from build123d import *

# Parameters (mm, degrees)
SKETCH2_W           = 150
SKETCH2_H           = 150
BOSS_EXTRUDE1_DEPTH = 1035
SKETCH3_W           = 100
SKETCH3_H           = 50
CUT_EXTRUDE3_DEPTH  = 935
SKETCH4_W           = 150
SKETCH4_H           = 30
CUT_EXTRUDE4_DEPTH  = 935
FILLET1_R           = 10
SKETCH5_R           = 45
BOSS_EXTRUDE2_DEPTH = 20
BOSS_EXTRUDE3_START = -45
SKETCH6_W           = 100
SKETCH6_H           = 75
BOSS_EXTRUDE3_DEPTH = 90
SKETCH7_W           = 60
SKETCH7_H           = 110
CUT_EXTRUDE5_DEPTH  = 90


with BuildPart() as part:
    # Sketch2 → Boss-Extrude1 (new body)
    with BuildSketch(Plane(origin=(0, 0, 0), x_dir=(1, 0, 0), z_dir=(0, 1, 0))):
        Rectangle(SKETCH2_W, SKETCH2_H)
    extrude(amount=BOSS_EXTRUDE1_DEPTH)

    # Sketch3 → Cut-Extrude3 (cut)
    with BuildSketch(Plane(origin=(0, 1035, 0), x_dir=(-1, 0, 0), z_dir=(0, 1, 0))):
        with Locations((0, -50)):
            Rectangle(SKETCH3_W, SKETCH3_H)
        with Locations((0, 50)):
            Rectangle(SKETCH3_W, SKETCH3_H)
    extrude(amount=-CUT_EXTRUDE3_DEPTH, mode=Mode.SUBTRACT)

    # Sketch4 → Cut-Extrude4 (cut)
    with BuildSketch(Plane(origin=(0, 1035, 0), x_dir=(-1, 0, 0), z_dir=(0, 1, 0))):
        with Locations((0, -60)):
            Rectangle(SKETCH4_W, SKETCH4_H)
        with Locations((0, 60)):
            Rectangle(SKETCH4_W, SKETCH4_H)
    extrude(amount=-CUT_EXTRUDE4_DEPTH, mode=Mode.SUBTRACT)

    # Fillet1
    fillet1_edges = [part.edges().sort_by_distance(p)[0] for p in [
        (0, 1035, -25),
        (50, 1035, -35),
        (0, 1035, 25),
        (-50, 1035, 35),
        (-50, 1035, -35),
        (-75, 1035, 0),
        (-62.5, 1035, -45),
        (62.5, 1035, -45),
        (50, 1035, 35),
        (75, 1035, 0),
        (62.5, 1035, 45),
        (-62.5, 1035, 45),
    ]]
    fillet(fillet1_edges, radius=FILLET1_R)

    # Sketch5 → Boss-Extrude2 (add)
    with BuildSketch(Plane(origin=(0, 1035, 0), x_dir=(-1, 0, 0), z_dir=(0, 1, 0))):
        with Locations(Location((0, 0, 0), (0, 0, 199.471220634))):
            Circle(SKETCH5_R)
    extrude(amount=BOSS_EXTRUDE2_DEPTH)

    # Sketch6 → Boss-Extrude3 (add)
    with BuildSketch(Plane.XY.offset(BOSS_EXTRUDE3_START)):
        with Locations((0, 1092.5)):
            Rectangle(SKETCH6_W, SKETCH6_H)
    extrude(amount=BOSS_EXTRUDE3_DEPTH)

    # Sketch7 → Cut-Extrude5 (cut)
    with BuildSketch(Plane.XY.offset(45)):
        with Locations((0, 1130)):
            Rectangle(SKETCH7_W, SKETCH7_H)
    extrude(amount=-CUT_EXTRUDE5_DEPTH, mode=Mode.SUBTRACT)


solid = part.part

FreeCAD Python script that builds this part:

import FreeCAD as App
import Part
import Sketcher


def edges_at(feature, points):
    """Names of the edges that pass closest to the given points."""
    edges = feature.Shape.Edges
    near = lambda p: min(range(len(edges)), key=lambda i: edges[i].distToShape(Part.Vertex(*p))[0])
    return sorted({f"Edge{near(p) + 1}" for p in points})


def add_polygon(sketch, points):
    """Adds a closed chain of lines whose ends are joined by coincident constraints."""
    first, n = sketch.GeometryCount, len(points)
    for a, b in zip(points, points[1:] + points[:1]):
        sketch.addGeometry(Part.LineSegment(App.Vector(*a, 0), App.Vector(*b, 0)), False)
    for i in range(n):
        sketch.addConstraint(Sketcher.Constraint("Coincident", first + i, 2, first + (i + 1) % n, 1))

doc = App.newDocument("Part")
body = doc.addObject("PartDesign::Body", "Body")

# Sketch on XZ plane
sketch1 = body.newObject("Sketcher::SketchObject", "Sketch")
sketch1.AttachmentSupport = (doc.getObject("XZ_Plane"), [""])
sketch1.MapMode = "FlatFace"
add_polygon(sketch1, [(-75, -75), (-75, 75), (75, 75), (75, -75)])  # lines 0-3
sketch1.addConstraint([
    Sketcher.Constraint("Vertical", 0),
    Sketcher.Constraint("Horizontal", 1),
    Sketcher.Constraint("Vertical", 2),
    Sketcher.Constraint("Horizontal", 3),
    Sketcher.Constraint("Symmetric", 0, 2, 2, 2, -1, 1),
    Sketcher.Constraint("Equal", 3, 0),
    Sketcher.Constraint("DistanceX", 1, 1, 1, 2, 150.0),
])
pad1 = body.newObject("PartDesign::Pad", "Pad")
pad1.Profile = sketch1
pad1.Length = 1035
pad1.Reversed = True

# Sketch on XZ plane
sketch2 = body.newObject("Sketcher::SketchObject", "Sketch001")
sketch2.AttachmentSupport = (doc.getObject("XZ_Plane"), [""])
sketch2.MapMode = "FlatFace"
sketch2.AttachmentOffset = App.Placement(App.Vector(0, 0, -1035), App.Rotation())
add_polygon(sketch2, [(50, -25), (50, -75), (-50, -75), (-50, -25)])  # lines 0-3
add_polygon(sketch2, [(50, 75), (50, 25), (-50, 25), (-50, 75)])  # lines 4-7
sketch2.addConstraint([
    Sketcher.Constraint("Vertical", 0),
    Sketcher.Constraint("Horizontal", 1),
    Sketcher.Constraint("Vertical", 2),
    Sketcher.Constraint("Horizontal", 3),
    Sketcher.Constraint("Vertical", 4),
    Sketcher.Constraint("Horizontal", 5),
    Sketcher.Constraint("Vertical", 6),
    Sketcher.Constraint("Horizontal", 7),
    Sketcher.Constraint("Symmetric", 2, 2, 4, 2, -1, 1),
    Sketcher.Constraint("Symmetric", 0, 2, 6, 2, -1, 1),
    Sketcher.Constraint("Vertical", 3, 2, 4, 2),
    Sketcher.Constraint("DistanceX", 1, 2, 1, 1, 100.0),
    Sketcher.Constraint("DistanceY", 0, 2, 0, 1, 50.0),
    Sketcher.Constraint("DistanceY", 0, 2, -1, 1, 75.0),
])
pocket1 = body.newObject("PartDesign::Pocket", "Pocket")
pocket1.Profile = sketch2
pocket1.Length = 935
pocket1.Reversed = True

# Sketch on XZ plane
sketch3 = body.newObject("Sketcher::SketchObject", "Sketch002")
sketch3.AttachmentSupport = (doc.getObject("XZ_Plane"), [""])
sketch3.MapMode = "FlatFace"
sketch3.AttachmentOffset = App.Placement(App.Vector(0, 0, -1035), App.Rotation())
add_polygon(sketch3, [(75, -45), (75, -75), (-75, -75), (-75, -45)])  # lines 0-3
add_polygon(sketch3, [(75, 75), (75, 45), (-75, 45), (-75, 75)])  # lines 4-7
sketch3.addConstraint([
    Sketcher.Constraint("Vertical", 0),
    Sketcher.Constraint("Horizontal", 1),
    Sketcher.Constraint("Vertical", 2),
    Sketcher.Constraint("Horizontal", 3),
    Sketcher.Constraint("Vertical", 4),
    Sketcher.Constraint("Horizontal", 5),
    Sketcher.Constraint("Vertical", 6),
    Sketcher.Constraint("Horizontal", 7),
    Sketcher.Constraint("Symmetric", 2, 2, 4, 2, -1, 1),
    Sketcher.Constraint("Symmetric", 0, 2, 6, 2, -1, 1),
    Sketcher.Constraint("Vertical", 3, 2, 4, 2),
    Sketcher.Constraint("DistanceX", 1, 2, 1, 1, 150.0),
    Sketcher.Constraint("DistanceY", 0, 2, 0, 1, 30.0),
    Sketcher.Constraint("DistanceY", 0, 2, -1, 1, 75.0),
])
pocket2 = body.newObject("PartDesign::Pocket", "Pocket001")
pocket2.Profile = sketch3
pocket2.Length = 935
pocket2.Reversed = True
doc.recompute()

fillet = body.newObject("PartDesign::Fillet", "Fillet")
fillet.Base = (pocket2, edges_at(pocket2, [
    (0, 1035, -25),
    (50, 1035, -35),
    (0, 1035, 25),
    (-50, 1035, 35),
    (-50, 1035, -35),
    (-75, 1035, 0),
    (-62.5, 1035, -45),
    (62.5, 1035, -45),
    (50, 1035, 35),
    (75, 1035, 0),
    (62.5, 1035, 45),
    (-62.5, 1035, 45),
]))
fillet.Radius = 10

# Sketch on XZ plane
sketch4 = body.newObject("Sketcher::SketchObject", "Sketch003")
sketch4.AttachmentSupport = (doc.getObject("XZ_Plane"), [""])
sketch4.MapMode = "FlatFace"
sketch4.AttachmentOffset = App.Placement(App.Vector(0, 0, -1035), App.Rotation())
sketch4.addGeometry(Part.Circle(App.Vector(0, 0, 0), App.Vector(0, 0, 1), 45), False)
sketch4.addConstraint([
    Sketcher.Constraint("Coincident", 0, 3, -1, 1),
    Sketcher.Constraint("Diameter", 0, 90.0),
])
pad2 = body.newObject("PartDesign::Pad", "Pad001")
pad2.Profile = sketch4
pad2.Length = 20
pad2.Reversed = True

# Sketch on XY plane
sketch5 = body.newObject("Sketcher::SketchObject", "Sketch004")
sketch5.AttachmentSupport = (doc.getObject("XY_Plane"), [""])
sketch5.MapMode = "FlatFace"
sketch5.AttachmentOffset = App.Placement(App.Vector(0, 0, -45), App.Rotation())
add_polygon(sketch5, [(-50, 1130), (-50, 1055), (50, 1055), (50, 1130)])  # lines 0-3
sketch5.addConstraint([
    Sketcher.Constraint("Vertical", 0),
    Sketcher.Constraint("Horizontal", 1),
    Sketcher.Constraint("Vertical", 2),
    Sketcher.Constraint("Horizontal", 3),
    Sketcher.Constraint("DistanceX", 1, 1, 1, 2, 100.0),
    Sketcher.Constraint("DistanceY", 0, 2, 0, 1, 75.0),
    Sketcher.Constraint("DistanceX", 0, 2, -1, 1, 50.0),
    Sketcher.Constraint("DistanceY", -1, 1, 0, 2, 1055.0),
])
pad3 = body.newObject("PartDesign::Pad", "Pad002")
pad3.Profile = sketch5
pad3.Length = 90

# Sketch on XY plane
sketch6 = body.newObject("Sketcher::SketchObject", "Sketch005")
sketch6.AttachmentSupport = (doc.getObject("XY_Plane"), [""])
sketch6.MapMode = "FlatFace"
sketch6.AttachmentOffset = App.Placement(App.Vector(0, 0, 45), App.Rotation())
add_polygon(sketch6, [(-30, 1185), (-30, 1075), (30, 1075), (30, 1185)])  # lines 0-3
sketch6.addConstraint([
    Sketcher.Constraint("Vertical", 0),
    Sketcher.Constraint("Horizontal", 1),
    Sketcher.Constraint("Vertical", 2),
    Sketcher.Constraint("Horizontal", 3),
    Sketcher.Constraint("DistanceX", 1, 1, 1, 2, 60.0),
    Sketcher.Constraint("DistanceY", 0, 2, 0, 1, 110.0),
    Sketcher.Constraint("DistanceX", 0, 2, -1, 1, 30.0),
    Sketcher.Constraint("DistanceY", -1, 1, 0, 2, 1075.0),
])
pocket3 = body.newObject("PartDesign::Pocket", "Pocket002")
pocket3.Profile = sketch6
pocket3.Length = 90

doc.recompute()
